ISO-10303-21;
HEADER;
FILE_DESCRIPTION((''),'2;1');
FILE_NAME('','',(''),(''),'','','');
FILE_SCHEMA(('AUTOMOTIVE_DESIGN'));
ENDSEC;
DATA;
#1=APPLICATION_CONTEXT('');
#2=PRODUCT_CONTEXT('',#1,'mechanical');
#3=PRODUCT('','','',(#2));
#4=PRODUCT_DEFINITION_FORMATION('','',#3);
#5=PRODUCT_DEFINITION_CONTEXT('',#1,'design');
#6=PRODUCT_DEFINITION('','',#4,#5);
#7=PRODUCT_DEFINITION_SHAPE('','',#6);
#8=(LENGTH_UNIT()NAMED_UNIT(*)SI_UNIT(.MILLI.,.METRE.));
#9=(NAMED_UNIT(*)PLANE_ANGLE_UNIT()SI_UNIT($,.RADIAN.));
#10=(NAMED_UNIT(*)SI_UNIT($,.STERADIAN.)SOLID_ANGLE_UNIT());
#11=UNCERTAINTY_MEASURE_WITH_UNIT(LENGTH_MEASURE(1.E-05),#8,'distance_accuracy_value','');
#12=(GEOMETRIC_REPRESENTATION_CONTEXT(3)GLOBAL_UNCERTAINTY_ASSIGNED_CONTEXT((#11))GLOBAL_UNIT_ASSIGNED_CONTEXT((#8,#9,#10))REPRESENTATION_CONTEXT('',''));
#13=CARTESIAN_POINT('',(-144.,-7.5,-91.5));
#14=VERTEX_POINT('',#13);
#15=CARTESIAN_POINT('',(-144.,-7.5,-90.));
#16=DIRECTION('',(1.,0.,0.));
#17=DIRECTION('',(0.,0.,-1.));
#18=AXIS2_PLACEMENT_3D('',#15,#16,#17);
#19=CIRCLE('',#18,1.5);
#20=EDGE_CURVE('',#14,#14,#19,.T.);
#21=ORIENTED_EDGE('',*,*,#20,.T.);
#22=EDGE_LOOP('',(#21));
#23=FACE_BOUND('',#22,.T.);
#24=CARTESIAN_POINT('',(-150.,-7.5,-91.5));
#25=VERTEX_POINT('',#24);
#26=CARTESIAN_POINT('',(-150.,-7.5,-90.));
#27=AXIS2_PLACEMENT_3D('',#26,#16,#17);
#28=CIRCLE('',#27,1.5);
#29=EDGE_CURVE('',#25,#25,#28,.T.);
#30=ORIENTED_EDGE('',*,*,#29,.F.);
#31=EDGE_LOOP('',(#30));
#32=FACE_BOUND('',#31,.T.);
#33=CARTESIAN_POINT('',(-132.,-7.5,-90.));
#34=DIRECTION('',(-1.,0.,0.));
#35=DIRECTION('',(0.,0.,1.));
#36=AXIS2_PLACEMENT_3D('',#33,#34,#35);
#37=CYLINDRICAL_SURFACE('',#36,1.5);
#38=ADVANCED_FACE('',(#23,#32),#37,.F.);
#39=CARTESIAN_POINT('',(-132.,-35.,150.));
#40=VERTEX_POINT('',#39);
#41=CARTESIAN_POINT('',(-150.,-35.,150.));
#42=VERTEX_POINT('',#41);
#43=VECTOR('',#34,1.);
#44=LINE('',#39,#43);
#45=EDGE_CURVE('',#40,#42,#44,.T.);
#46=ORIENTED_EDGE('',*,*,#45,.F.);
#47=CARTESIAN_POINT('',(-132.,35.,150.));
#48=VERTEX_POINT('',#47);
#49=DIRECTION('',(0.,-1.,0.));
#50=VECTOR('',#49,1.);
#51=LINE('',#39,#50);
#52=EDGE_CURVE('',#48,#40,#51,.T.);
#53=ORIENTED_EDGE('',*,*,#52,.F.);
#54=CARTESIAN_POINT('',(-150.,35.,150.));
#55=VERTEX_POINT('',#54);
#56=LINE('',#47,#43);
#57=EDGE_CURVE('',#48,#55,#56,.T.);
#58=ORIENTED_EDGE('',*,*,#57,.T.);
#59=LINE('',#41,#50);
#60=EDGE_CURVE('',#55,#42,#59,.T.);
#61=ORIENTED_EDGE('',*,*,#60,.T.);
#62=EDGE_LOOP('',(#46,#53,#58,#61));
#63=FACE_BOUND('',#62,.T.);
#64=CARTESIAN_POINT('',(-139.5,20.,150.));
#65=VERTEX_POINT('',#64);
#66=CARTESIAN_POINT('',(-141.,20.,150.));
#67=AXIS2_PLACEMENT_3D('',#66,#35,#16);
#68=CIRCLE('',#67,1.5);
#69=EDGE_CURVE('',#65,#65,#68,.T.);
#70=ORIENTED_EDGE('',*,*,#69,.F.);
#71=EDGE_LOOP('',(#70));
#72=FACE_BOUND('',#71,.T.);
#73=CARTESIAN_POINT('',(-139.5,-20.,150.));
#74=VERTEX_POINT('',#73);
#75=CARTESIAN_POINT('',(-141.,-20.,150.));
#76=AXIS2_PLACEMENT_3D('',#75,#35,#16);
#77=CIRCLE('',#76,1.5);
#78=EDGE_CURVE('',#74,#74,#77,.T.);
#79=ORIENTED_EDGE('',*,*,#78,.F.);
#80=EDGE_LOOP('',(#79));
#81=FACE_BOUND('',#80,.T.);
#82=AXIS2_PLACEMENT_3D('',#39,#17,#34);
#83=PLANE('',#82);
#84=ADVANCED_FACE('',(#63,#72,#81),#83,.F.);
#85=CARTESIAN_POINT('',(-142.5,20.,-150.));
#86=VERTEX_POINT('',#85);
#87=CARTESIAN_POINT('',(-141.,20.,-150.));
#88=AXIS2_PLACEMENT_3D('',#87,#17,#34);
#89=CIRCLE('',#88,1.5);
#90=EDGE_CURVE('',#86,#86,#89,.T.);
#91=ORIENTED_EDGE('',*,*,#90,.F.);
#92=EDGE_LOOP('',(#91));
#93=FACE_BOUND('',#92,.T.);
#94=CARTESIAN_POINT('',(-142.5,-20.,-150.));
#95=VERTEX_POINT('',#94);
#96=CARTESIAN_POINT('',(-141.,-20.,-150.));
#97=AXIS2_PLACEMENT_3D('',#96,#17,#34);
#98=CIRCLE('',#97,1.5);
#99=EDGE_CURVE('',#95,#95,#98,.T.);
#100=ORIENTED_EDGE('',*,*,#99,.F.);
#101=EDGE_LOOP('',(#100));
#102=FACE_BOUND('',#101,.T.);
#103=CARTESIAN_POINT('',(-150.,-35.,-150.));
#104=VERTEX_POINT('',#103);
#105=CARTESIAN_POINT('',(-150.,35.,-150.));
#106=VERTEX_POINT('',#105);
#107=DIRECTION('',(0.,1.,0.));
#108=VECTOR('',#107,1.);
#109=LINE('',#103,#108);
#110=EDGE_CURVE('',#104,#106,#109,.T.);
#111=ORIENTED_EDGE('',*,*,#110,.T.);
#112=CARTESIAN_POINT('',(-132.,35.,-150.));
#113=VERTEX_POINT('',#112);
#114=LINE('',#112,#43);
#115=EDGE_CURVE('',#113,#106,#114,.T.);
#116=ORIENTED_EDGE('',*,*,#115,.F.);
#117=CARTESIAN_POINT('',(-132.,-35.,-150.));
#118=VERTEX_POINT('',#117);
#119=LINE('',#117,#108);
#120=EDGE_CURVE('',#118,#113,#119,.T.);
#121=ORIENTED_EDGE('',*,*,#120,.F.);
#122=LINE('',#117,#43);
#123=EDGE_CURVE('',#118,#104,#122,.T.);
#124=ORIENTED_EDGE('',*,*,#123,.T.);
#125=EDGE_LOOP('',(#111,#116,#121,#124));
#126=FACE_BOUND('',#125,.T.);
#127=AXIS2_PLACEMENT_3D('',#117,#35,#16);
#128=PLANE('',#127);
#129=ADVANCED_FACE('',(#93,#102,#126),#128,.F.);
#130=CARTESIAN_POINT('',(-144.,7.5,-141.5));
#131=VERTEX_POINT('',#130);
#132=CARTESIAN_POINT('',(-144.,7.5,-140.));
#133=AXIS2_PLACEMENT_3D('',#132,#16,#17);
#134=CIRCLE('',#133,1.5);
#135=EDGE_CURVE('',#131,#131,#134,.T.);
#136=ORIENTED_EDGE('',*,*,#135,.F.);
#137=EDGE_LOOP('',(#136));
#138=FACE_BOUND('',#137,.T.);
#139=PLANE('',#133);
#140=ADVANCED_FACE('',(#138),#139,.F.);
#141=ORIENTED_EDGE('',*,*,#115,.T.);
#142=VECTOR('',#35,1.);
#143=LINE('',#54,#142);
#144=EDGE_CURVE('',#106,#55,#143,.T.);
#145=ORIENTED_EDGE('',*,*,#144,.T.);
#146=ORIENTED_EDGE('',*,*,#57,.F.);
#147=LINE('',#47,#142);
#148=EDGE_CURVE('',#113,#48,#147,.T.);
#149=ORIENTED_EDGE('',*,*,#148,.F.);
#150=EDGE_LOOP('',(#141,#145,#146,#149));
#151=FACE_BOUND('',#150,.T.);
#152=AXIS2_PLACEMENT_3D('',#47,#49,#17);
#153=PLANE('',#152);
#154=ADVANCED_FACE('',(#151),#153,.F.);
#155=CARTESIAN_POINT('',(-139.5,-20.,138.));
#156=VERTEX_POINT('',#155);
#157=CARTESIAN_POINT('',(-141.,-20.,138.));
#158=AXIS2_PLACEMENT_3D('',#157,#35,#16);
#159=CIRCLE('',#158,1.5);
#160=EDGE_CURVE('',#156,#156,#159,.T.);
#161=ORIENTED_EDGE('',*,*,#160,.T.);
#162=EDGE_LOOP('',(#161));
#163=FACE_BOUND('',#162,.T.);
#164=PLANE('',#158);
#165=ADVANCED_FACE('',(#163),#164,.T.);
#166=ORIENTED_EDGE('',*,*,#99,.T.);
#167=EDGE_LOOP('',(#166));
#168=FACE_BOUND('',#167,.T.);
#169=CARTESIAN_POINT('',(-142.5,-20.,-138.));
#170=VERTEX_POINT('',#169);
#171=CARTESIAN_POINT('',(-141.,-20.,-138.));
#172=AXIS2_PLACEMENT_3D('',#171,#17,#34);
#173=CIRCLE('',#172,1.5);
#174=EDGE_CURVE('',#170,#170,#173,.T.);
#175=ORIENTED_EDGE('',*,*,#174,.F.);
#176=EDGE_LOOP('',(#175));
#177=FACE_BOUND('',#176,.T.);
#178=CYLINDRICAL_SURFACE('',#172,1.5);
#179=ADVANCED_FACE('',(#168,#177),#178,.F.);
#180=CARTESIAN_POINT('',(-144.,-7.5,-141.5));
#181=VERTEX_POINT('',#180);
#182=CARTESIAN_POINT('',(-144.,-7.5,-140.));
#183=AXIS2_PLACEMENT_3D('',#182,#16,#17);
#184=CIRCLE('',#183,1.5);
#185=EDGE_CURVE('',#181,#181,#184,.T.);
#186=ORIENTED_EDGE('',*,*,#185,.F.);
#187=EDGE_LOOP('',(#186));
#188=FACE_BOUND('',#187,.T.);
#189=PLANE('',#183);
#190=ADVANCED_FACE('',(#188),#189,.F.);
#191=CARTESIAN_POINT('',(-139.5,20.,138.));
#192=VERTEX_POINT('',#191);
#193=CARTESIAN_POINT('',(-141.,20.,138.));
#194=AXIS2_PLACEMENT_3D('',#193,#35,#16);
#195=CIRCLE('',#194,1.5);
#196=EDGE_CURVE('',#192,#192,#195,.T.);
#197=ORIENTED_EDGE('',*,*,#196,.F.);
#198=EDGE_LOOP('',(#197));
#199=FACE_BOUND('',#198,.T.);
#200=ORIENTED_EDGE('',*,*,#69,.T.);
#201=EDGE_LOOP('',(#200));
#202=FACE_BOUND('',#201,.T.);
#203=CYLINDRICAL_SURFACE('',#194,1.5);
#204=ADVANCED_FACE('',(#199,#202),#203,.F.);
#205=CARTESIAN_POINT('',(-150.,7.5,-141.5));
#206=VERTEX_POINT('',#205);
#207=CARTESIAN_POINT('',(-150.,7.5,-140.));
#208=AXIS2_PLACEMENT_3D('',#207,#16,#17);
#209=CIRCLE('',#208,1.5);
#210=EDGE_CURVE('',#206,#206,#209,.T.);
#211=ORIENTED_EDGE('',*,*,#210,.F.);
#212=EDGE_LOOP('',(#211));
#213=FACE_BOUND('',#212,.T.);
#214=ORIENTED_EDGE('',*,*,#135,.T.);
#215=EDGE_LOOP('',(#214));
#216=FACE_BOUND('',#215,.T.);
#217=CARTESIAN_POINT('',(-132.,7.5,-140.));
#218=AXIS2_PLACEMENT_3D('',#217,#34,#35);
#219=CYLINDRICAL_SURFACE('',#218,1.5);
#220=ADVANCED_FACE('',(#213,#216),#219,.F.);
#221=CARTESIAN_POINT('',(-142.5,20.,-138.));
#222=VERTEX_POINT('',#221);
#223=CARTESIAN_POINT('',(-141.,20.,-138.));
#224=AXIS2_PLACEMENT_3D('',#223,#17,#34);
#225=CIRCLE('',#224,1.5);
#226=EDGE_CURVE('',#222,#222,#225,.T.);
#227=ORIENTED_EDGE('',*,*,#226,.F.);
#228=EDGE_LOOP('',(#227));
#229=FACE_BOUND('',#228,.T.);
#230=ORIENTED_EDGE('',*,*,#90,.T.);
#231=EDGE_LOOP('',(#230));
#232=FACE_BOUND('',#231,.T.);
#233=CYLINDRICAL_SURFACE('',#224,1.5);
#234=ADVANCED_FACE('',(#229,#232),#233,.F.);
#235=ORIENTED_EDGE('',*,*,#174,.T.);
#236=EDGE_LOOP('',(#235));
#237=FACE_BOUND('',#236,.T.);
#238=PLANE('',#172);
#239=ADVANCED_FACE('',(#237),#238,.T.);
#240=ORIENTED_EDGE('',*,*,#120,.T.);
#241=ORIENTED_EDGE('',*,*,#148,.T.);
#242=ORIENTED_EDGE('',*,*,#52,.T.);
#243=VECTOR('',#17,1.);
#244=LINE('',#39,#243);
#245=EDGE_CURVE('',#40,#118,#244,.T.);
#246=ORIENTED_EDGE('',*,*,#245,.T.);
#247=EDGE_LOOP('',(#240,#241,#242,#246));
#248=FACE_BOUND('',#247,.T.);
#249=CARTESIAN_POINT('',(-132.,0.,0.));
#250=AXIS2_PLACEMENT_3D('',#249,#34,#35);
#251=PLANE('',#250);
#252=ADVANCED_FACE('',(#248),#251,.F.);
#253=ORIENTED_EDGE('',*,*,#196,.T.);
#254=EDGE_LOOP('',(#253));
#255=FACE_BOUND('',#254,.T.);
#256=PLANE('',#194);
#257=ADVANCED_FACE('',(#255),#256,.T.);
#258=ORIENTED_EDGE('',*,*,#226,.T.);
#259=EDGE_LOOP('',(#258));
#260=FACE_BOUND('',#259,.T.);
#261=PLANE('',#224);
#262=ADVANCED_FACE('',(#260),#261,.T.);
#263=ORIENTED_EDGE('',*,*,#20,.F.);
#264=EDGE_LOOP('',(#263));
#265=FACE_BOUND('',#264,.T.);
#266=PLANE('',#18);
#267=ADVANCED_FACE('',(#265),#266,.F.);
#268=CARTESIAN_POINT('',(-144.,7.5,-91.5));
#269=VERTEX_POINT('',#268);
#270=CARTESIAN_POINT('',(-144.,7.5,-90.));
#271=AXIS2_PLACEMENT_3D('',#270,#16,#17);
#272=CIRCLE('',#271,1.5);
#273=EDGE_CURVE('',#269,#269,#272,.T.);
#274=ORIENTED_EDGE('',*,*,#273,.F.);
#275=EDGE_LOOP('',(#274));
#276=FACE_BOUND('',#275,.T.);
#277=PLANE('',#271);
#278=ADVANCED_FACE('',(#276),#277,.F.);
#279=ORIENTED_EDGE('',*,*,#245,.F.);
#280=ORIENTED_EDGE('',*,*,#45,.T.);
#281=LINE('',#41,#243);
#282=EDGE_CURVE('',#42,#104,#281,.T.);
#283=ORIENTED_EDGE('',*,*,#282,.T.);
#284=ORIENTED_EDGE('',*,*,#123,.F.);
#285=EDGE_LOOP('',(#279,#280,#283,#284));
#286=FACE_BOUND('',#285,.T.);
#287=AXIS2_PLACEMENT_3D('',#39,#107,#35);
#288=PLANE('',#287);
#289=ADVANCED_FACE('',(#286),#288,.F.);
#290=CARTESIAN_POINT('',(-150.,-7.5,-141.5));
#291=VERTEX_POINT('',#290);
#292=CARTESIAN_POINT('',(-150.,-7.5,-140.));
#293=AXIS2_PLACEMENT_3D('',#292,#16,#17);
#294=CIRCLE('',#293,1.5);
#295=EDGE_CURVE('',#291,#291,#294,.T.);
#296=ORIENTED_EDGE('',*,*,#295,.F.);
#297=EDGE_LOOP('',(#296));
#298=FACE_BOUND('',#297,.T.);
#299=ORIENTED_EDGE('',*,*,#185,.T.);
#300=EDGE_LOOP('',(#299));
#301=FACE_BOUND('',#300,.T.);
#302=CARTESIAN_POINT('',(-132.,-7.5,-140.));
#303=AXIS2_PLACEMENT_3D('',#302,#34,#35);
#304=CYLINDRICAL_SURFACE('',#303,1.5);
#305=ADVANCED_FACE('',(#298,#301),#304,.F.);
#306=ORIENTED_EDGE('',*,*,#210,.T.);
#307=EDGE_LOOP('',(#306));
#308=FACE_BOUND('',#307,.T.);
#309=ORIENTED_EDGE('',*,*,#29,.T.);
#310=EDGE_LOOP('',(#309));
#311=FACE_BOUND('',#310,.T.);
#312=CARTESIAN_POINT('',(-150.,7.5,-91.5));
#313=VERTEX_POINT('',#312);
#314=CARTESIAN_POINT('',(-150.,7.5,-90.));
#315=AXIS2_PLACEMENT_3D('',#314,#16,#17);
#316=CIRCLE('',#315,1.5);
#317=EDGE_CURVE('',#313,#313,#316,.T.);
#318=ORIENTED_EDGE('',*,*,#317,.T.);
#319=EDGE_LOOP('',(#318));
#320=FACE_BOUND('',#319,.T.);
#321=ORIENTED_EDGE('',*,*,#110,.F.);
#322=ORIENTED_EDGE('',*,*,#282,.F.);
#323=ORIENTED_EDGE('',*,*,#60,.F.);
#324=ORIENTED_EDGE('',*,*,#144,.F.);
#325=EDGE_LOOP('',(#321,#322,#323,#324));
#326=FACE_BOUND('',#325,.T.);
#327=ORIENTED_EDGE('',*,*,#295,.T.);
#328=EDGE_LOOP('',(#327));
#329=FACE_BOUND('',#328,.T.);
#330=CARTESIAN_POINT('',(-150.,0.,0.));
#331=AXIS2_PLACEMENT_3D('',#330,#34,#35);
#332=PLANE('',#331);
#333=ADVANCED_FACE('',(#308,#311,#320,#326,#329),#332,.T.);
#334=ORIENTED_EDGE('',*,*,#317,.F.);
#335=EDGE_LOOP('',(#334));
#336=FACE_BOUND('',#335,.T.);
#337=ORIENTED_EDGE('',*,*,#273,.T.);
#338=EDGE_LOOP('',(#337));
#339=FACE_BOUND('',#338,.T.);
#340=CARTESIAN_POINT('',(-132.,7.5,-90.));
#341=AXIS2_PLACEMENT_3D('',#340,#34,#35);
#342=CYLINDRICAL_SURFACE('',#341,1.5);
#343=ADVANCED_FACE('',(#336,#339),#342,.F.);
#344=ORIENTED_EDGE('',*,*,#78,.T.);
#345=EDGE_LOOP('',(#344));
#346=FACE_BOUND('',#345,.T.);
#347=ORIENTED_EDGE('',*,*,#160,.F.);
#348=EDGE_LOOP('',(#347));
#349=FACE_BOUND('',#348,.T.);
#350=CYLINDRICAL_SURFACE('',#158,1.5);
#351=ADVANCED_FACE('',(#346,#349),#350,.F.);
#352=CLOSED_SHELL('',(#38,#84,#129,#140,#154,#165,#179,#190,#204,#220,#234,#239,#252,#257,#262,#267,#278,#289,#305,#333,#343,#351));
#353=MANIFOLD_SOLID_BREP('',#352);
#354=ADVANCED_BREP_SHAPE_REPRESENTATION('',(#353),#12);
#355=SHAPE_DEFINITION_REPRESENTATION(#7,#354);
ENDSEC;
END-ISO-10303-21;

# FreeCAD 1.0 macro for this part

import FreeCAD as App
import Part
import Sketcher

V = App.Vector

doc = App.newDocument("Part")
params = doc.addObject("Spreadsheet::Sheet", "Params")
for row, (alias, value) in enumerate([
    ("sketch1_diameter", "3 mm"),
    ("sketch1_width", "70 mm"),
    ("sketch1_height", "300 mm"),
    ("pad1_length", "18 mm"),
    ("sketch2_diameter", "3 mm"),
    ("pocket1_length", "12 mm"),
    ("sketch3_diameter", "3 mm"),
    ("pocket2_length", "12 mm"),
    ("sketch4_diameter", "3 mm"),
    ("pad2_length", "12 mm"),
], start=1):
    params.set(f"A{row}", alias)
    params.set(f"B{row}", "=" + value)
    params.setAlias(f"B{row}", alias)

body = doc.addObject("PartDesign::Body", "Body")

# Sketch on YZ plane
sketch1 = doc.addObject("Sketcher::SketchObject", "Sketch")
body.addObject(sketch1)
sketch1.AttachmentSupport = (doc.YZ_Plane, [""])
sketch1.MapMode = "FlatFace"
sketch1.AttachmentOffset = App.Placement(V(0, 0, -150), App.Rotation())
sketch1.addGeometry([
    Part.LineSegment(V(35, 150, 0), V(-35, 150, 0)),  # 0
    Part.LineSegment(V(-35, 150, 0), V(-35, -150, 0)),  # 1
    Part.LineSegment(V(-35, -150, 0), V(35, -150, 0)),  # 2
    Part.LineSegment(V(35, -150, 0), V(35, 150, 0)),  # 3
    Part.Circle(V(-7.5, -90, 0), V(0, 0, 1), 1.5),  # 4
    Part.Circle(V(-7.5, -140, 0), V(0, 0, 1), 1.5),  # 5
    Part.Circle(V(7.5, -90, 0), V(0, 0, 1), 1.5),  # 6
    Part.Circle(V(7.5, -140, 0), V(0, 0, 1), 1.5),  # 7
], False)
sketch1.addConstraint([
    Sketcher.Constraint("Coincident", 0, 2, 1, 1),
    Sketcher.Constraint("Coincident", 1, 2, 2, 1),
    Sketcher.Constraint("Coincident", 2, 2, 3, 1),
    Sketcher.Constraint("Coincident", 3, 2, 0, 1),
    Sketcher.Constraint("Horizontal", 0),
    Sketcher.Constraint("Vertical", 1),
    Sketcher.Constraint("Horizontal", 2),
    Sketcher.Constraint("Vertical", 3),
    Sketcher.Constraint("Equal", 4, 5),
    Sketcher.Constraint("Equal", 5, 6),
    Sketcher.Constraint("Equal", 6, 7),
    Sketcher.Constraint("Symmetric", 0, 2, 2, 2, -1, 1),
    Sketcher.Constraint("Symmetric", 4, 3, 6, 3, -2),
    Sketcher.Constraint("Symmetric", 5, 3, 7, 3, -2),
    Sketcher.Constraint("Vertical", 4, 3, 5, 3),
    Sketcher.Constraint("Diameter", 4, 3.0),
    Sketcher.Constraint("DistanceX", 0, 2, 0, 1, 70.0),
    Sketcher.Constraint("DistanceY", 1, 2, 1, 1, 300.0),
    Sketcher.Constraint("DistanceY", 4, 3, -1, 1, 90.0),
    Sketcher.Constraint("DistanceY", 5, 3, -1, 1, 140.0),
    Sketcher.Constraint("DistanceX", 4, 3, 6, 3, 15.0),
])
sketch1.setExpression("Constraints[15]", "Params.sketch1_diameter")
sketch1.setExpression("Constraints[16]", "Params.sketch1_width")
sketch1.setExpression("Constraints[17]", "Params.sketch1_height")
pad1 = doc.addObject("PartDesign::Pad", "Pad")
body.addObject(pad1)
pad1.Profile = sketch1
pad1.setExpression("Length", "Params.pad1_length")

# Sketch on XY plane
sketch2 = doc.addObject("Sketcher::SketchObject", "Sketch001")
body.addObject(sketch2)
sketch2.AttachmentSupport = (doc.XY_Plane, [""])
sketch2.MapMode = "FlatFace"
sketch2.AttachmentOffset = App.Placement(V(0, 0, 150), App.Rotation())
sketch2.addGeometry([
    Part.Circle(V(-141, -20, 0), V(0, 0, 1), 1.5),
    Part.Circle(V(-141, 20, 0), V(0, 0, 1), 1.5),
], False)
sketch2.addConstraint([
    Sketcher.Constraint("Equal", 0, 1),
    Sketcher.Constraint("Symmetric", 0, 3, 1, 3, -1),
    Sketcher.Constraint("Diameter", 0, 3.0),
    Sketcher.Constraint("DistanceX", 0, 3, -1, 1, 141.0),
    Sketcher.Constraint("DistanceY", 0, 3, -1, 1, 20.0),
])
sketch2.setExpression("Constraints[2]", "Params.sketch2_diameter")
pocket1 = doc.addObject("PartDesign::Pocket", "Pocket")
body.addObject(pocket1)
pocket1.Profile = sketch2
pocket1.setExpression("Length", "Params.pocket1_length")

# Sketch on XY plane
sketch3 = doc.addObject("Sketcher::SketchObject", "Sketch002")
body.addObject(sketch3)
sketch3.AttachmentSupport = (doc.XY_Plane, [""])
sketch3.MapMode = "FlatFace"
sketch3.AttachmentOffset = App.Placement(V(0, 0, -150), App.Rotation())
sketch3.addGeometry([
    Part.Circle(V(-141, -20, 0), V(0, 0, 1), 1.5),
    Part.Circle(V(-141, 20, 0), V(0, 0, 1), 1.5),
], False)
sketch3.addConstraint([
    Sketcher.Constraint("Equal", 0, 1),
    Sketcher.Constraint("Symmetric", 0, 3, 1, 3, -1),
    Sketcher.Constraint("Diameter", 0, 3.0),
    Sketcher.Constraint("DistanceX", 0, 3, -1, 1, 141.0),
    Sketcher.Constraint("DistanceY", 0, 3, -1, 1, 20.0),
])
sketch3.setExpression("Constraints[2]", "Params.sketch3_diameter")
pocket2 = doc.addObject("PartDesign::Pocket", "Pocket001")
body.addObject(pocket2)
pocket2.Profile = sketch3
pocket2.setExpression("Length", "Params.pocket2_length")
pocket2.Reversed = True

# Sketch on YZ plane
sketch4 = doc.addObject("Sketcher::SketchObject", "Sketch003")
body.addObject(sketch4)
sketch4.AttachmentSupport = (doc.YZ_Plane, [""])
sketch4.MapMode = "FlatFace"
sketch4.AttachmentOffset = App.Placement(V(0, 0, -132), App.Rotation())
sketch4.addGeometry([
    Part.Circle(V(-7.5, -140, 0), V(0, 0, 1), 1.5),
    Part.Circle(V(7.5, -140, 0), V(0, 0, 1), 1.5),
    Part.Circle(V(-7.5, -90, 0), V(0, 0, 1), 1.5),
    Part.Circle(V(7.5, -90, 0), V(0, 0, 1), 1.5),
], False)
sketch4.addConstraint([
    Sketcher.Constraint("Equal", 0, 1),
    Sketcher.Constraint("Equal", 1, 2),
    Sketcher.Constraint("Equal", 2, 3),
    Sketcher.Constraint("Symmetric", 0, 3, 1, 3, -2),
    Sketcher.Constraint("Symmetric", 2, 3, 3, 3, -2),
    Sketcher.Constraint("Vertical", 0, 3, 2, 3),
    Sketcher.Constraint("Diameter", 0, 3.0),
    Sketcher.Constraint("DistanceY", 0, 3, -1, 1, 140.0),
    Sketcher.Constraint("DistanceY", 2, 3, -1, 1, 90.0),
    Sketcher.Constraint("DistanceX", 0, 3, 1, 3, 15.0),
])
sketch4.setExpression("Constraints[6]", "Params.sketch4_diameter")
pad2 = doc.addObject("PartDesign::Pad", "Pad001")
body.addObject(pad2)
pad2.Profile = sketch4
pad2.setExpression("Length", "Params.pad2_length")
pad2.Reversed = True

doc.recompute()
